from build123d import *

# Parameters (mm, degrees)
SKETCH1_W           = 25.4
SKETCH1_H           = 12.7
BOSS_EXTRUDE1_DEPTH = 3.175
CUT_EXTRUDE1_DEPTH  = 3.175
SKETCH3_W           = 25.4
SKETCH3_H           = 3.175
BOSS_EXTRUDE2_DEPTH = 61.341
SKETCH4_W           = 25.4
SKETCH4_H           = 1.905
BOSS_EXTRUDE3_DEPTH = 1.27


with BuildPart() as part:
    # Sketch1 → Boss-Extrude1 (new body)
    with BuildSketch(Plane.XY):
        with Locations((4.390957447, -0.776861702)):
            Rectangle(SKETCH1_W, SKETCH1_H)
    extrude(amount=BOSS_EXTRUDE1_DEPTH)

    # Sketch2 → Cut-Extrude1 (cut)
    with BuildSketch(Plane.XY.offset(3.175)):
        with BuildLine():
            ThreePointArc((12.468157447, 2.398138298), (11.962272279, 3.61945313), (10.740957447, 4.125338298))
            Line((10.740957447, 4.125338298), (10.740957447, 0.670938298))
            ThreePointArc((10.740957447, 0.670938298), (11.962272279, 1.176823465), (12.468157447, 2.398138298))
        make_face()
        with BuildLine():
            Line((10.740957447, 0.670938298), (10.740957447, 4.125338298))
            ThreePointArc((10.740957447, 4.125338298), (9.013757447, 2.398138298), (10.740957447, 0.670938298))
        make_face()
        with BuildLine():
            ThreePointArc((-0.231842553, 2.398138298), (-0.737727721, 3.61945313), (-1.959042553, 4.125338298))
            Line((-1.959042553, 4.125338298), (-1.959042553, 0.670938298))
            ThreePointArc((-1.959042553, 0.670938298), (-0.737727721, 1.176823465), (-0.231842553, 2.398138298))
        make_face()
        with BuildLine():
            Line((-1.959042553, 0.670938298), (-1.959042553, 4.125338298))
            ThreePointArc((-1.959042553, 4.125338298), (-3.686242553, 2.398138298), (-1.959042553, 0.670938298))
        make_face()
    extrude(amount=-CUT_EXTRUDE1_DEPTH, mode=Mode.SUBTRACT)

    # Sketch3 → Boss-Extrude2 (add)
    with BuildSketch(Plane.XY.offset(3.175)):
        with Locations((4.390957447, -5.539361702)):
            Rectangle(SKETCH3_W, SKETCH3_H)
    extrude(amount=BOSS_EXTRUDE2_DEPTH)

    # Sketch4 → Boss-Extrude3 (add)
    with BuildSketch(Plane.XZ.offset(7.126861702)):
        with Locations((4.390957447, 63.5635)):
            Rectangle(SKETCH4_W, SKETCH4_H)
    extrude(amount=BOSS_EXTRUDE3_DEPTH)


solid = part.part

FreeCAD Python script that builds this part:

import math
import FreeCAD as App
import Part
import Sketcher
from FreeCAD import Vector
Q = App.Units.Quantity


def add_polygon(sketch, points):
    """Adds a closed chain of lines whose ends are joined by coincident constraints."""
    first, n = sketch.GeometryCount, len(points)
    for a, b in zip(points, points[1:] + points[:1]):
        sketch.addGeometry(Part.LineSegment(App.Vector(*a, 0), App.Vector(*b, 0)), False)
    for i in range(n):
        sketch.addConstraint(Sketcher.Constraint("Coincident", first + i, 2, first + (i + 1) % n, 1))

doc = App.newDocument("Part")
body = doc.addObject("PartDesign::Body", "Body")

sketch1 = doc.addObject("Sketcher::SketchObject", "Sketch")
body.addObject(sketch1)
sketch1.AttachmentSupport = (doc.XY_Plane, [""])
sketch1.MapMode = "FlatFace"
add_polygon(sketch1, [(-8, 6), (-8, -7), (17, -7), (17, 6)])
sketch1.addConstraint(Sketcher.Constraint("Vertical", 0))
sketch1.addConstraint(Sketcher.Constraint("Horizontal", 1))
sketch1.addConstraint(Sketcher.Constraint("Vertical", 2))
sketch1.addConstraint(Sketcher.Constraint("Horizontal", 3))
sketch1.addConstraint(Sketcher.Constraint("DistanceX", 1, 1, 1, 2, Q("1 in")))
sketch1.addConstraint(Sketcher.Constraint("DistanceY", 0, 2, 0, 1, Q("0.5 in")))
sketch1.addConstraint(Sketcher.Constraint("DistanceY", 0, 2, -1, 1, 7.126862))
sketch1.addConstraint(Sketcher.Constraint("DistanceX", 0, 2, -1, 1, 8.309043))
pad1 = doc.addObject("PartDesign::Pad", "Pad")
body.addObject(pad1)
pad1.Profile = sketch1
pad1.Length = Q("0.125 in")

sketch2 = doc.addObject("Sketcher::SketchObject", "Sketch001")
body.addObject(sketch2)
sketch2.AttachmentSupport = (doc.XY_Plane, [""])
sketch2.MapMode = "FlatFace"
sketch2.AttachmentOffset = App.Placement(Vector(0, 0, 0.125 * 25.4), App.Rotation())
sketch2.addGeometry(Part.ArcOfCircle(Part.Circle(Vector(10.7, 2.4, 0), Vector(0, 0, 1), 1.7), math.radians(0), math.radians(90)), False)
sketch2.addGeometry(Part.ArcOfCircle(Part.Circle(Vector(10.7, 2.4, 0), Vector(0, 0, 1), 1.7), math.radians(90), math.radians(270)), False)
sketch2.addGeometry(Part.ArcOfCircle(Part.Circle(Vector(10.7, 2.4, 0), Vector(0, 0, 1), 1.7), math.radians(-90), math.radians(0)), False)
sketch2.addGeometry(Part.ArcOfCircle(Part.Circle(Vector(-2, 2.4, 0), Vector(0, 0, 1), 1.7), math.radians(0), math.radians(90)), False)
sketch2.addGeometry(Part.ArcOfCircle(Part.Circle(Vector(-2, 2.4, 0), Vector(0, 0, 1), 1.7), math.radians(90), math.radians(270)), False)
sketch2.addGeometry(Part.ArcOfCircle(Part.Circle(Vector(-2, 2.4, 0), Vector(0, 0, 1), 1.7), math.radians(-90), math.radians(0)), False)
sketch2.addConstraint(Sketcher.Constraint("Tangent", 0, 2, 1, 1))
sketch2.addConstraint(Sketcher.Constraint("Tangent", 1, 2, 2, 1))
sketch2.addConstraint(Sketcher.Constraint("Tangent", 2, 2, 0, 1))
sketch2.addConstraint(Sketcher.Constraint("Tangent", 3, 2, 4, 1))
sketch2.addConstraint(Sketcher.Constraint("Tangent", 4, 2, 5, 1))
sketch2.addConstraint(Sketcher.Constraint("Tangent", 5, 2, 3, 1))
sketch2.addConstraint(Sketcher.Constraint("Equal", 2, 3))
sketch2.addConstraint(Sketcher.Constraint("Horizontal", 2, 3, 3, 3))
sketch2.addConstraint(Sketcher.Constraint("Horizontal", 5, 3, 2, 2))
sketch2.addConstraint(Sketcher.Constraint("Horizontal", 2, 2, 5, 2))
sketch2.addConstraint(Sketcher.Constraint("Vertical", 2, 3, 0, 2))
sketch2.addConstraint(Sketcher.Constraint("Vertical", 0, 2, 1, 2))
sketch2.addConstraint(Sketcher.Constraint("Vertical", 5, 3, 3, 2))
sketch2.addConstraint(Sketcher.Constraint("Vertical", 3, 2, 4, 2))
sketch2.addConstraint(Sketcher.Constraint("Radius", 0, Q("0.068 in")))
sketch2.addConstraint(Sketcher.Constraint("DistanceX", 3, 3, 0, 3, Q("0.5 in")))
sketch2.addConstraint(Sketcher.Constraint("DistanceY", -1, 1, 0, 3, 2.398138))
sketch2.addConstraint(Sketcher.Constraint("DistanceX", -1, 1, 0, 3, 10.740957))
pocket1 = doc.addObject("PartDesign::Pocket", "Pocket")
body.addObject(pocket1)
pocket1.Profile = sketch2
pocket1.Length = Q("0.125 in")

sketch3 = doc.addObject("Sketcher::SketchObject", "Sketch002")
body.addObject(sketch3)
sketch3.AttachmentSupport = (doc.XY_Plane, [""])
sketch3.MapMode = "FlatFace"
sketch3.AttachmentOffset = App.Placement(Vector(0, 0, 0.125 * 25.4), App.Rotation())
add_polygon(sketch3, [(-8.3, -4), (-8.3, -7.1), (17.1, -7.1), (17.1, -4)])
sketch3.addConstraint(Sketcher.Constraint("Vertical", 0))
sketch3.addConstraint(Sketcher.Constraint("Horizontal", 1))
sketch3.addConstraint(Sketcher.Constraint("Vertical", 2))
sketch3.addConstraint(Sketcher.Constraint("Horizontal", 3))
sketch3.addConstraint(Sketcher.Constraint("DistanceX", 1, 1, 1, 2, Q("1 in")))
sketch3.addConstraint(Sketcher.Constraint("DistanceY", 0, 2, 0, 1, Q("0.125 in")))
sketch3.addConstraint(Sketcher.Constraint("DistanceY", 0, 2, -1, 1, 7.126862))
sketch3.addConstraint(Sketcher.Constraint("DistanceX", 0, 2, -1, 1, 8.309043))
pad2 = doc.addObject("PartDesign::Pad", "Pad001")
body.addObject(pad2)
pad2.Profile = sketch3
pad2.Length = Q("2.415 in")

sketch4 = doc.addObject("Sketcher::SketchObject", "Sketch003")
body.addObject(sketch4)
sketch4.AttachmentSupport = (doc.XZ_Plane, [""])
sketch4.MapMode = "FlatFace"
sketch4.AttachmentOffset = App.Placement(Vector(0, 0, 7.126862), App.Rotation())
add_polygon(sketch4, [(-8.3, 64.5), (-8.3, 62.6), (17.1, 62.6), (17.1, 64.5)])
sketch4.addConstraint(Sketcher.Constraint("Vertical", 0))
sketch4.addConstraint(Sketcher.Constraint("Horizontal", 1))
sketch4.addConstraint(Sketcher.Constraint("Vertical", 2))
sketch4.addConstraint(Sketcher.Constraint("Horizontal", 3))
sketch4.addConstraint(Sketcher.Constraint("DistanceX", 1, 1, 1, 2, Q("1 in")))
sketch4.addConstraint(Sketcher.Constraint("DistanceY", 0, 2, 0, 1, Q("0.075 in")))
sketch4.addConstraint(Sketcher.Constraint("DistanceY", -1, 1, 2, 2, Q("2.54 in")))
sketch4.addConstraint(Sketcher.Constraint("DistanceX", 0, 2, -1, 1, 8.309043))
pad3 = doc.addObject("PartDesign::Pad", "Pad002")
body.addObject(pad3)
pad3.Profile = sketch4
pad3.Length = Q("0.05 in")

doc.recompute()
